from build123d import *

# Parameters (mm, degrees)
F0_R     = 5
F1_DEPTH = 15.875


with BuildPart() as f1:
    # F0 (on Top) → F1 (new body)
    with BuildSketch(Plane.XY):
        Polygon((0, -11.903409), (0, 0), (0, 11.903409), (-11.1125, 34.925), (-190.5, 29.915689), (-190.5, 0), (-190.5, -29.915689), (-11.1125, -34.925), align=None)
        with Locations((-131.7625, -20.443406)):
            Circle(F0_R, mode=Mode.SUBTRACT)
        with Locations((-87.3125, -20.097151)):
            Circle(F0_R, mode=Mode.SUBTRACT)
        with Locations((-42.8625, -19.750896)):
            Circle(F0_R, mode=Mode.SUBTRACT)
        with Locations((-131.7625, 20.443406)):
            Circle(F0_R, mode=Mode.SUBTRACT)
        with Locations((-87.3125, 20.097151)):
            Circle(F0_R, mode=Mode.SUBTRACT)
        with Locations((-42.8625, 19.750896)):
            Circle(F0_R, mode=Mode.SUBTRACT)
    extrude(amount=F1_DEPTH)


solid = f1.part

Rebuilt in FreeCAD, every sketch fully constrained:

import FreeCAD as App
import Part
import Sketcher

V = App.Vector


def add_polygon(sketch, points):
    """Adds a closed chain of lines whose ends are joined by coincident constraints."""
    first, n = sketch.GeometryCount, len(points)
    for a, b in zip(points, points[1:] + points[:1]):
        sketch.addGeometry(Part.LineSegment(App.Vector(*a, 0), App.Vector(*b, 0)), False)
    for i in range(n):
        sketch.addConstraint(Sketcher.Constraint("Coincident", first + i, 2, first + (i + 1) % n, 1))

doc = App.newDocument("Part")
params = doc.addObject("Spreadsheet::Sheet", "Params")
for row, (alias, value) in enumerate([
    ("sketch1_diameter", "10 mm"),
    ("pad1_length", "15.875 mm"),
], start=1):
    params.set(f"A{row}", alias)
    params.set(f"B{row}", "=" + value)
    params.setAlias(f"B{row}", alias)

body = doc.addObject("PartDesign::Body", "Body")

# Sketch on XY plane
sketch1 = body.newObject("Sketcher::SketchObject", "Sketch")
sketch1.AttachmentSupport = (doc.getObject("XY_Plane"), [""])
sketch1.MapMode = "FlatFace"
add_polygon(sketch1, [(0, -12), (0, 12), (-11, 35), (-190, 30), (-190, -30), (-11, -35)])  # lines 0-5
sketch1.addGeometry(Part.Circle(V(-132, -20, 0), V(0, 0, 1), 5), False)  # 6
sketch1.addGeometry(Part.Circle(V(-87, -20, 0), V(0, 0, 1), 5), False)  # 7
sketch1.addGeometry(Part.Circle(V(-43, -20, 0), V(0, 0, 1), 5), False)  # 8
sketch1.addGeometry(Part.Circle(V(-132, 20, 0), V(0, 0, 1), 5), False)  # 9
sketch1.addGeometry(Part.Circle(V(-87, 20, 0), V(0, 0, 1), 5), False)  # 10
sketch1.addGeometry(Part.Circle(V(-43, 20, 0), V(0, 0, 1), 5), False)  # 11
sketch1.addConstraint(Sketcher.Constraint("Vertical", 0))
sketch1.addConstraint(Sketcher.Constraint("Vertical", 3))
sketch1.addConstraint(Sketcher.Constraint("Equal", 6, 7))
sketch1.addConstraint(Sketcher.Constraint("Equal", 7, 8))
sketch1.addConstraint(Sketcher.Constraint("Equal", 8, 9))
sketch1.addConstraint(Sketcher.Constraint("Equal", 9, 10))
sketch1.addConstraint(Sketcher.Constraint("Equal", 10, 11))
sketch1.addConstraint(Sketcher.Constraint("Symmetric", 0, 2, 5, 2, -1, 1))
sketch1.addConstraint(Sketcher.Constraint("Symmetric", 6, 3, 9, 3, -1))
sketch1.addConstraint(Sketcher.Constraint("Symmetric", 7, 3, 10, 3, -1))
sketch1.addConstraint(Sketcher.Constraint("Symmetric", 8, 3, 11, 3, -1))
sketch1.addConstraint(Sketcher.Constraint("Symmetric", 1, 2, 4, 2, -1))
sketch1.addConstraint(Sketcher.Constraint("Equal", 2, 4))
sketch1.addConstraint(Sketcher.Constraint("Diameter", 6, 10.0))
sketch1.addConstraint(Sketcher.Constraint("DistanceX", 2, 2, -1, 1, 190.5))
sketch1.addConstraint(Sketcher.Constraint("DistanceX", 6, 3, 8, 3, 88.9))
sketch1.addConstraint(Sketcher.Constraint("DistanceX", 10, 3, 1, 2, 76.2))
sketch1.addConstraint(Sketcher.Constraint("DistanceX", 6, 3, 7, 3, 44.45))
sketch1.addConstraint(Sketcher.Constraint("DistanceY", 4, 2, 1, 2, 69.85))
sketch1.addConstraint(Sketcher.Constraint("DistanceY", 0, 1, 0, 2, 23.806818))
sketch1.addConstraint(Sketcher.Constraint("DistanceX", 6, 3, -1, 1, 131.7625))
sketch1.addConstraint(Sketcher.Constraint("DistanceY", 3, 2, 3, 1, 59.831378))
sketch1.addConstraint(Sketcher.Constraint("DistanceY", 7, 3, -1, 1, 20.097151))
sketch1.addConstraint(Sketcher.Constraint("DistanceY", 6, 3, 8, 3, 0.69251))
sketch1.addConstraint(Sketcher.Constraint("DistanceY", 6, 3, -1, 1, 20.443406))
sketch1.setExpression("Constraints[19]", "Params.sketch1_diameter")
pad1 = body.newObject("PartDesign::Pad", "Pad")
pad1.Profile = sketch1
pad1.setExpression("Length", "Params.pad1_length")

doc.recompute()
